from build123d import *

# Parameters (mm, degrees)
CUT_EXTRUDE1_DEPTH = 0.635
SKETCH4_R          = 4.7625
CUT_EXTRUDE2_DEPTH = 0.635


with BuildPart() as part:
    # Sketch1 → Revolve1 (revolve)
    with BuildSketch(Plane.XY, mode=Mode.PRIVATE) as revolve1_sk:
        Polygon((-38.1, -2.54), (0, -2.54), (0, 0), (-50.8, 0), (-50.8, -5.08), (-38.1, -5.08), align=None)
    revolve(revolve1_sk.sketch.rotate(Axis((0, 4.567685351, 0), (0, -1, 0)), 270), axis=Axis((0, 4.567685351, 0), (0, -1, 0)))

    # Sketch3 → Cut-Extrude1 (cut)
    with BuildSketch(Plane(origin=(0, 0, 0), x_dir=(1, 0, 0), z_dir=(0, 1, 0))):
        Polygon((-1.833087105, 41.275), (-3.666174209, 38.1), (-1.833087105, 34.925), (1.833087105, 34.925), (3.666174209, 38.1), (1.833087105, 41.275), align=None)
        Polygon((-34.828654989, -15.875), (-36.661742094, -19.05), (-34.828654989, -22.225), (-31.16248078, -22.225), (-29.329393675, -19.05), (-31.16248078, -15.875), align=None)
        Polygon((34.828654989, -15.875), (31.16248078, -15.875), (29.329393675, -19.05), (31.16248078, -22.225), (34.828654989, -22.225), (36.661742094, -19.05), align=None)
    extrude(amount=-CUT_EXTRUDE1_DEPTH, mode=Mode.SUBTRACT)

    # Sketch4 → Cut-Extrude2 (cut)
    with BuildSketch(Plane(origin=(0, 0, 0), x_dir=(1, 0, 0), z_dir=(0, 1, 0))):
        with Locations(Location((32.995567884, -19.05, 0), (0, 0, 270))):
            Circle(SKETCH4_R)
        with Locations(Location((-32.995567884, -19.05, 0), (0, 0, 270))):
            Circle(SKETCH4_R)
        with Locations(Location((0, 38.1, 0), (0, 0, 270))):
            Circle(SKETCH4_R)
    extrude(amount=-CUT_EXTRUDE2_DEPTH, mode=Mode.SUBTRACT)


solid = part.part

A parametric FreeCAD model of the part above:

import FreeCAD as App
import Part
import Sketcher
Q = App.Units.Quantity


def add_polygon(sketch, points):
    """Adds a closed chain of lines whose ends are joined by coincident constraints."""
    first, n = sketch.GeometryCount, len(points)
    for a, b in zip(points, points[1:] + points[:1]):
        sketch.addGeometry(Part.LineSegment(App.Vector(*a, 0), App.Vector(*b, 0)), False)
    for i in range(n):
        sketch.addConstraint(Sketcher.Constraint("Coincident", first + i, 2, first + (i + 1) % n, 1))

doc = App.newDocument("Part")
body = doc.addObject("PartDesign::Body", "Body")

sketch1 = body.newObject("Sketcher::SketchObject", "Sketch")
sketch1.AttachmentSupport = (doc.getObject("XY_Plane"), [""])
sketch1.MapMode = "FlatFace"
add_polygon(sketch1, [(-38.1, -2.5), (0, -2.5), (0, 0), (-50.8, 0), (-50.8, -5.1), (-38.1, -5.1)])
sketch1.addConstraint(Sketcher.Constraint("Horizontal", 0))
sketch1.addConstraint(Sketcher.Constraint("Vertical", 1))
sketch1.addConstraint(Sketcher.Constraint("Horizontal", 2))
sketch1.addConstraint(Sketcher.Constraint("Vertical", 3))
sketch1.addConstraint(Sketcher.Constraint("Horizontal", 4))
sketch1.addConstraint(Sketcher.Constraint("Vertical", 5))
sketch1.addConstraint(Sketcher.Constraint("Coincident", 1, 2, -1, 1))
sketch1.addConstraint(Sketcher.Constraint("Equal", 1, 5))
sketch1.addConstraint(Sketcher.Constraint("DistanceX", 2, 2, 2, 1, Q("2 in")))
sketch1.addConstraint(Sketcher.Constraint("DistanceX", 0, 1, 0, 2, Q("1.5 in")))
sketch1.addConstraint(Sketcher.Constraint("DistanceY", 1, 1, 1, 2, Q("0.1 in")))
revolution = body.newObject("PartDesign::Revolution", "Revolution")
revolution.Profile = sketch1
revolution.ReferenceAxis = (sketch1, ["V_Axis"])
revolution.Angle = 360

sketch2 = body.newObject("Sketcher::SketchObject", "Sketch001")
sketch2.AttachmentSupport = (doc.getObject("XZ_Plane"), [""])
sketch2.MapMode = "FlatFace"
add_polygon(sketch2, [(-1.8, -41.3), (-3.7, -38.1), (-1.8, -34.9), (1.8, -34.9), (3.7, -38.1), (1.8, -41.3)])
add_polygon(sketch2, [(-34.8, 15.9), (-36.7, 19.1), (-34.8, 22.2), (-31.2, 22.2), (-29.3, 19.1), (-31.2, 15.9)])
add_polygon(sketch2, [(34.8, 15.9), (31.2, 15.9), (29.3, 19.1), (31.2, 22.2), (34.8, 22.2), (36.7, 19.1)])
sketch2.addConstraint(Sketcher.Constraint("Horizontal", 2))
sketch2.addConstraint(Sketcher.Constraint("Horizontal", 5))
sketch2.addConstraint(Sketcher.Constraint("Horizontal", 8))
sketch2.addConstraint(Sketcher.Constraint("Horizontal", 11))
sketch2.addConstraint(Sketcher.Constraint("Horizontal", 12))
sketch2.addConstraint(Sketcher.Constraint("Horizontal", 15))
sketch2.addConstraint(Sketcher.Constraint("Symmetric", 0, 2, 3, 2, -2))
sketch2.addConstraint(Sketcher.Constraint("Symmetric", 10, 2, 12, 2, -2))
sketch2.addConstraint(Sketcher.Constraint("Symmetric", 9, 2, 13, 2, -2))
sketch2.addConstraint(Sketcher.Constraint("Symmetric", 8, 2, 14, 2, -2))
sketch2.addConstraint(Sketcher.Constraint("Symmetric", 6, 2, 16, 2, -2))
sketch2.addConstraint(Sketcher.Constraint("Parallel", 0, 3))
sketch2.addConstraint(Sketcher.Constraint("Parallel", 1, 4))
sketch2.addConstraint(Sketcher.Constraint("Parallel", 3, 6))
sketch2.addConstraint(Sketcher.Constraint("Parallel", 4, 7))
sketch2.addConstraint(Sketcher.Constraint("Parallel", 6, 9))
sketch2.addConstraint(Sketcher.Constraint("Parallel", 7, 10))
sketch2.addConstraint(Sketcher.Constraint("Parallel", 9, 13))
sketch2.addConstraint(Sketcher.Constraint("Parallel", 13, 16))
sketch2.addConstraint(Sketcher.Constraint("Parallel", 14, 17))
sketch2.addConstraint(Sketcher.Constraint("Horizontal", 6, 2, 9, 2))
sketch2.addConstraint(Sketcher.Constraint("Vertical", 2, 2, 4, 2))
sketch2.addConstraint(Sketcher.Constraint("Vertical", 8, 2, 10, 2))
sketch2.addConstraint(Sketcher.Constraint("Equal", 5, 8))
sketch2.addConstraint(Sketcher.Constraint("Equal", 4, 6))
sketch2.addConstraint(Sketcher.Constraint("Angle", 0, Q("120 deg")))
sketch2.addConstraint(Sketcher.Constraint("DistanceY", 1, 2, 10, 2, Q("2 in")))
sketch2.addConstraint(Sketcher.Constraint("DistanceY", 0, 2, -1, 1, Q("1.5 in")))
sketch2.addConstraint(Sketcher.Constraint("DistanceY", -1, 1, 6, 2, Q("0.75 in")))
sketch2.addConstraint(Sketcher.Constraint("DistanceX", 2, 1, 2, 2, 3.666174))
sketch2.addConstraint(Sketcher.Constraint("DistanceX", 8, 2, -1, 1, 31.162481))
pocket1 = body.newObject("PartDesign::Pocket", "Pocket")
pocket1.Profile = sketch2
pocket1.Length = Q("0.025 in")
pocket1.Reversed = True

sketch3 = body.newObject("Sketcher::SketchObject", "Sketch002")
sketch3.AttachmentSupport = (doc.getObject("XZ_Plane"), [""])
sketch3.MapMode = "FlatFace"
sketch3.addGeometry(Part.Circle(App.Vector(33, 19.1, 0), App.Vector(0, 0, 1), 4.8), False)
sketch3.addGeometry(Part.Circle(App.Vector(-33, 19.1, 0), App.Vector(0, 0, 1), 4.8), False)
sketch3.addGeometry(Part.Circle(App.Vector(0, -38.1, 0), App.Vector(0, 0, 1), 4.8), False)
sketch3.addConstraint(Sketcher.Constraint("Equal", 0, 1))
sketch3.addConstraint(Sketcher.Constraint("Equal", 1, 2))
sketch3.addConstraint(Sketcher.Constraint("Symmetric", 0, 3, 1, 3, -2))
sketch3.addConstraint(Sketcher.Constraint("PointOnObject", 2, 3, -2))
sketch3.addConstraint(Sketcher.Constraint("Diameter", 0, Q("0.375 in")))
sketch3.addConstraint(Sketcher.Constraint("DistanceY", 2, 3, -1, 1, Q("1.5 in")))
sketch3.addConstraint(Sketcher.Constraint("DistanceY", -1, 1, 0, 3, Q("0.75 in")))
sketch3.addConstraint(Sketcher.Constraint("DistanceX", -1, 1, 0, 3, 32.995568))
pocket2 = body.newObject("PartDesign::Pocket", "Pocket001")
pocket2.Profile = sketch3
pocket2.Length = Q("0.025 in")
pocket2.Reversed = True

doc.recompute()
